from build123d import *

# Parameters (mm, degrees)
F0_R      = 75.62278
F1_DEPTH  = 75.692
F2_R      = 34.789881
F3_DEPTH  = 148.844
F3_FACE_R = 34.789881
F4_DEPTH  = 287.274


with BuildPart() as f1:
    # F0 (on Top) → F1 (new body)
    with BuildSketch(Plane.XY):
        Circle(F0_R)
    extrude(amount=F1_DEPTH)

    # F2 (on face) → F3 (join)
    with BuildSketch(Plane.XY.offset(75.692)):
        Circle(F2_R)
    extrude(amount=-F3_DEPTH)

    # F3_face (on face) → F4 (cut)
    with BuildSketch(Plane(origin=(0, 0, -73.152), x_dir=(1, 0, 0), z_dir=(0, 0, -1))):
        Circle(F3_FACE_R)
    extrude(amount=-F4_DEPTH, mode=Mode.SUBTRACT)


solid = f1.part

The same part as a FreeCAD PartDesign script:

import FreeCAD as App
import Part
import Sketcher
from FreeCAD import Vector
Q = App.Units.Quantity

doc = App.newDocument("Part")
body = doc.addObject("PartDesign::Body", "Body")

sketch1 = doc.addObject("Sketcher::SketchObject", "Sketch")
body.addObject(sketch1)
sketch1.AttachmentSupport = (doc.XY_Plane, [""])
sketch1.MapMode = "FlatFace"
sketch1.addGeometry(Part.Circle(Vector(0, 0, 0), Vector(0, 0, 1), 76), False)
sketch1.addConstraint([
    Sketcher.Constraint("Coincident", 0, 3, -1, 1),
    Sketcher.Constraint("Diameter", 0, Q("151.24556 mm")),
])
pad1 = doc.addObject("PartDesign::Pad", "Pad")
body.addObject(pad1)
pad1.Profile = sketch1
pad1.Length = Q("2.98 in")

sketch2 = doc.addObject("Sketcher::SketchObject", "Sketch001")
body.addObject(sketch2)
sketch2.AttachmentSupport = (doc.XY_Plane, [""])
sketch2.MapMode = "FlatFace"
sketch2.AttachmentOffset = App.Placement(Vector(0, 0, 2.98 * 25.4), App.Rotation())
sketch2.addGeometry(Part.Circle(Vector(0, 0, 0), Vector(0, 0, 1), 35), False)
sketch2.addConstraint([
    Sketcher.Constraint("Coincident", 0, 3, -1, 1),
    Sketcher.Constraint("Diameter", 0, Q("69.579762 mm")),
])
pad2 = doc.addObject("PartDesign::Pad", "Pad001")
body.addObject(pad2)
pad2.Profile = sketch2
pad2.Length = Q("5.86 in")
pad2.Reversed = True

sketch3 = doc.addObject("Sketcher::SketchObject", "Sketch002")
body.addObject(sketch3)
sketch3.AttachmentSupport = (doc.XY_Plane, [""])
sketch3.MapMode = "FlatFace"
sketch3.AttachmentOffset = App.Placement(Vector(0, 0, -2.88 * 25.4), App.Rotation())
sketch3.addGeometry(Part.Circle(Vector(0, 0, 0), Vector(0, 0, 1), 35), False)
sketch3.addConstraint([
    Sketcher.Constraint("Coincident", 0, 3, -1, 1),
    Sketcher.Constraint("Diameter", 0, Q("69.579762 mm")),
])
pocket1 = doc.addObject("PartDesign::Pocket", "Pocket")
body.addObject(pocket1)
pocket1.Profile = sketch3
pocket1.Length = Q("11.31 in")
pocket1.Reversed = True

doc.recompute()
